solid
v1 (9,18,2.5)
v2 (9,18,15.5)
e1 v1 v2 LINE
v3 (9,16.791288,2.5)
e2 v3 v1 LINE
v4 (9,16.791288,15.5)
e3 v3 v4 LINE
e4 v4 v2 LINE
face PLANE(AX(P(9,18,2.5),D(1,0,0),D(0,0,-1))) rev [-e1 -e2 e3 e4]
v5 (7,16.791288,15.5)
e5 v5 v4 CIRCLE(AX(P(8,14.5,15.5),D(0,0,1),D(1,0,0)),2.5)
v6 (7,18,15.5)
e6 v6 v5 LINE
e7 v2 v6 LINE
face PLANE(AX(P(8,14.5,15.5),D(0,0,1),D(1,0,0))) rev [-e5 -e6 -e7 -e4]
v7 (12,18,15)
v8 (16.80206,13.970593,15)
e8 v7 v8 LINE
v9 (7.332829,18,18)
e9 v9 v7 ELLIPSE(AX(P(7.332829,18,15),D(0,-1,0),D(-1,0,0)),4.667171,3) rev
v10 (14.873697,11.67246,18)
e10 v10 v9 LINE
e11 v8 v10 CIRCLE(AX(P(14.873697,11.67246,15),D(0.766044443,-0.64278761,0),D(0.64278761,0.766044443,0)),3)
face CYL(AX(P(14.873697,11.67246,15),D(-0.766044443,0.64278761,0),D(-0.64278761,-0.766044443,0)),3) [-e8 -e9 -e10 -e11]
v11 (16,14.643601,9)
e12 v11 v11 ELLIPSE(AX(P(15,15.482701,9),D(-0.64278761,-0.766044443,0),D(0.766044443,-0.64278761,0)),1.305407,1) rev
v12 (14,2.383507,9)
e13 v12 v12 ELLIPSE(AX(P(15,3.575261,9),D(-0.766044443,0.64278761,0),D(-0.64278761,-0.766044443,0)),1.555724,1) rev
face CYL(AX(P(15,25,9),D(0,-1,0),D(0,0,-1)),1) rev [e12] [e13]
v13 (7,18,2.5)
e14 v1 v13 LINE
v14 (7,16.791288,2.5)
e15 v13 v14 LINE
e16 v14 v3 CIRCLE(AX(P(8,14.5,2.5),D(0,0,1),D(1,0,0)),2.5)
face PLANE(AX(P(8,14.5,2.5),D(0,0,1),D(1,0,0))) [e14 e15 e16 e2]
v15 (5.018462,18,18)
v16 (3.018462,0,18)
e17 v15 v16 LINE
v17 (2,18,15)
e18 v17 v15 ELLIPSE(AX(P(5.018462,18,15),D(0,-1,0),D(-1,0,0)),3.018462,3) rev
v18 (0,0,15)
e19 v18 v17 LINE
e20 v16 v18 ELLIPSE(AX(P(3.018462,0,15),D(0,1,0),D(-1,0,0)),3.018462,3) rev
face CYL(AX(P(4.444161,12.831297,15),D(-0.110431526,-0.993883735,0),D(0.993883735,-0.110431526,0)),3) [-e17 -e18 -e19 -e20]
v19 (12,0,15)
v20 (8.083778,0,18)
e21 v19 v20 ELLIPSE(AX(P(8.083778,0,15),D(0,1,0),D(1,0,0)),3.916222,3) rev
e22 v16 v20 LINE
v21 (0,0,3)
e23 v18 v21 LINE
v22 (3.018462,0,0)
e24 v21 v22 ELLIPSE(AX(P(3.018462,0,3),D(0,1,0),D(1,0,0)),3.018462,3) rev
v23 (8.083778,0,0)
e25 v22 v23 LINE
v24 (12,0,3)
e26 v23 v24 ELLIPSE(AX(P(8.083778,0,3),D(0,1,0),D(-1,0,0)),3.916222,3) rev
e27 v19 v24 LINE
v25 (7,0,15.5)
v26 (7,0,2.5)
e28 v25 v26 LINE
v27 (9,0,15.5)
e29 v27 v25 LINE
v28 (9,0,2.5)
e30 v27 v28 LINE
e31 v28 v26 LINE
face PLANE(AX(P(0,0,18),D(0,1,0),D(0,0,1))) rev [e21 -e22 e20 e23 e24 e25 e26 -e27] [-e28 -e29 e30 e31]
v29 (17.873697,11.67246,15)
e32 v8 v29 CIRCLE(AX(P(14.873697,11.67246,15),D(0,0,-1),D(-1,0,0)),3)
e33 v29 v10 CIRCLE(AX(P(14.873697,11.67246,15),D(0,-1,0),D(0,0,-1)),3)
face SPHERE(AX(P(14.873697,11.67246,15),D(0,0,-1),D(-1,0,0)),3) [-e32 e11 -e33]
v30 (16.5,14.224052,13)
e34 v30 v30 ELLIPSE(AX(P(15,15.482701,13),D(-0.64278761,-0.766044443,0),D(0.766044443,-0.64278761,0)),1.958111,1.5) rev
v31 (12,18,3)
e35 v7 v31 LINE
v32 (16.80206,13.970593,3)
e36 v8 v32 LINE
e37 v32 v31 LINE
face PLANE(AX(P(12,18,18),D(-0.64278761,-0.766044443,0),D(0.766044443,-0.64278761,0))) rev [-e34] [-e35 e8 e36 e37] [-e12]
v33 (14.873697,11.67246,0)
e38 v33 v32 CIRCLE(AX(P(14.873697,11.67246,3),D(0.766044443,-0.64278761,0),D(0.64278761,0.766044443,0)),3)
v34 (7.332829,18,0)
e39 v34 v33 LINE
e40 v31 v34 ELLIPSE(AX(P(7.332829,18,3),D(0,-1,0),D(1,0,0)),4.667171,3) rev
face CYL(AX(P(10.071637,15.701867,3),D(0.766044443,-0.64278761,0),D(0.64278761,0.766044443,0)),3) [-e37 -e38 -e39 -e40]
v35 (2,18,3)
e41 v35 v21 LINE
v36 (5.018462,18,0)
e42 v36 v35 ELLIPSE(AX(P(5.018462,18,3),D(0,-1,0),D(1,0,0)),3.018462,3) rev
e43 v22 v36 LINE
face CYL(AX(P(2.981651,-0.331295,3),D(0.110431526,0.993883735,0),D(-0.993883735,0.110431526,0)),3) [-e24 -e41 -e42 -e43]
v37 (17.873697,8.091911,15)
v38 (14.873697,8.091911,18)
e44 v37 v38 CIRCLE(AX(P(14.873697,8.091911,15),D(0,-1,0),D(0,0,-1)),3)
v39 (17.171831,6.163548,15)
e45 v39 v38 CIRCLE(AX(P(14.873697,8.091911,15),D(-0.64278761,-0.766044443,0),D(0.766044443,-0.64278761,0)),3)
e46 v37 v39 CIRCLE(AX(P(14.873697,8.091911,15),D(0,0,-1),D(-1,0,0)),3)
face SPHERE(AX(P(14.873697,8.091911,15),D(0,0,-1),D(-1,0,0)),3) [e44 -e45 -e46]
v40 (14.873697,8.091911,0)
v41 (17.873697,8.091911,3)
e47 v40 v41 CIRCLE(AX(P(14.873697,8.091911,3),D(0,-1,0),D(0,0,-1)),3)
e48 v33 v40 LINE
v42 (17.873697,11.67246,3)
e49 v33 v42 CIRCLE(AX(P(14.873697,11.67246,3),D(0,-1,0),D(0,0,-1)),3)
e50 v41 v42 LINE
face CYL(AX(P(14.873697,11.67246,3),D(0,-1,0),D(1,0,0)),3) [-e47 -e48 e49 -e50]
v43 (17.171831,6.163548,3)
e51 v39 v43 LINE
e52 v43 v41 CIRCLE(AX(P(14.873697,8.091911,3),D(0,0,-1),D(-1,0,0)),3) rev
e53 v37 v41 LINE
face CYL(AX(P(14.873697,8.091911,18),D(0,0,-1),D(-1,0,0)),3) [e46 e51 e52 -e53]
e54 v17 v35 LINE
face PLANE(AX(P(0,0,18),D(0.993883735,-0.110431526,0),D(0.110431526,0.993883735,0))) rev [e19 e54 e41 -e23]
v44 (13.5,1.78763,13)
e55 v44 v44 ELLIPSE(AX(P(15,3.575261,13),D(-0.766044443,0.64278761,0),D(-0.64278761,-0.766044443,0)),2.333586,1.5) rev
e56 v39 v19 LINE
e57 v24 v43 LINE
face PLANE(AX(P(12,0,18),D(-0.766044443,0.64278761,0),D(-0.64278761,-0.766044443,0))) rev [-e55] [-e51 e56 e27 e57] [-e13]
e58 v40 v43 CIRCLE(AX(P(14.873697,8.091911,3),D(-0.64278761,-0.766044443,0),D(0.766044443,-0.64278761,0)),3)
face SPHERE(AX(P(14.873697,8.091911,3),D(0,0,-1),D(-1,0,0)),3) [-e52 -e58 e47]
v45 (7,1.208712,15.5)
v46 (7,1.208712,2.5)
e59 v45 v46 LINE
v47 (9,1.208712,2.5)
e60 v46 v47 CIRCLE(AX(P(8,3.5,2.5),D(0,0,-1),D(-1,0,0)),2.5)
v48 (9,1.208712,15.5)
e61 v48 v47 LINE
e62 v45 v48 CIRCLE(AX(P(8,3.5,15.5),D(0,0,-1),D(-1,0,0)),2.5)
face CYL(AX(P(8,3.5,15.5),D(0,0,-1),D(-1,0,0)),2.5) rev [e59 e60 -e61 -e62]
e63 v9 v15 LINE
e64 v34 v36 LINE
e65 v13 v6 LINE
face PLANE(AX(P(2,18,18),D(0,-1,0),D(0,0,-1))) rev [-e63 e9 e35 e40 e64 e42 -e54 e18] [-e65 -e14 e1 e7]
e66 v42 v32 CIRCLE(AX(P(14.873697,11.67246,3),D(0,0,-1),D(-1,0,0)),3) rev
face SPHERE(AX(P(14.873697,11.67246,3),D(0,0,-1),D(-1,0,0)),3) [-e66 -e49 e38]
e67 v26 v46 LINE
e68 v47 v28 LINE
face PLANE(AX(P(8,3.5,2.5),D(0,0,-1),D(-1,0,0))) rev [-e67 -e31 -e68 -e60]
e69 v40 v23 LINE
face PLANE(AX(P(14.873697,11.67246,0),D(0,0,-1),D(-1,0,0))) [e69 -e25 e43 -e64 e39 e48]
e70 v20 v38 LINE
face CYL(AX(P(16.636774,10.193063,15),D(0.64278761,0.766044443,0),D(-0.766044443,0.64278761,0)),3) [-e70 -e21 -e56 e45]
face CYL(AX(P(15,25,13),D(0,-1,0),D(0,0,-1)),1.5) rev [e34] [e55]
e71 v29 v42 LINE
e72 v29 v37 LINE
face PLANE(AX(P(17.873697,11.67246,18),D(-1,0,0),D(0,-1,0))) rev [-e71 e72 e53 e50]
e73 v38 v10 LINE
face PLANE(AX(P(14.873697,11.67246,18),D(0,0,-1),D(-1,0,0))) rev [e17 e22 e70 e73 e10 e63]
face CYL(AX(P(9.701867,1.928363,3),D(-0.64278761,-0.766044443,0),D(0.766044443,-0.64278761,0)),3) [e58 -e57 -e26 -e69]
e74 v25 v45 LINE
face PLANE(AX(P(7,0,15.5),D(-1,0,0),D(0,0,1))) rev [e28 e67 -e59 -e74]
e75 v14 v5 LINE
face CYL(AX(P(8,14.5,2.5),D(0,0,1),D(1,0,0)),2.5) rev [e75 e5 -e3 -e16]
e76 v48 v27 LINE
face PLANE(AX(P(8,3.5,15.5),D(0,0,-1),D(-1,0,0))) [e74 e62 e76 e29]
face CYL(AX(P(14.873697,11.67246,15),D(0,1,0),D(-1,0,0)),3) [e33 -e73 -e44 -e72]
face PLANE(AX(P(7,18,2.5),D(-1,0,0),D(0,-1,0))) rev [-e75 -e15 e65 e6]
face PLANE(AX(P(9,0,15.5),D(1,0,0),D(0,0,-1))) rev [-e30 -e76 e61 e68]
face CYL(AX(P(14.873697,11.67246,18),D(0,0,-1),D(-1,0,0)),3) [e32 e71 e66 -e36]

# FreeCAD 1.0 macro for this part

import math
import FreeCAD as App
import Part
import Sketcher
Q = App.Units.Quantity


def edges_at(feature, points):
    """Names of the edges that pass closest to the given points."""
    edges = feature.Shape.Edges
    near = lambda p: min(range(len(edges)), key=lambda i: edges[i].distToShape(Part.Vertex(*p))[0])
    return sorted({f"Edge{near(p) + 1}" for p in points})

doc = App.newDocument("Part")
body = doc.addObject("PartDesign::Body", "Body")

sketch1 = body.newObject("Sketcher::SketchObject", "Sketch")
sketch1.AttachmentSupport = (doc.getObject("XY_Plane"), [""])
sketch1.MapMode = "FlatFace"
sketch1.addGeometry([
    Part.LineSegment(App.Vector(0, 0, 0), App.Vector(12, 0, 0)),
    Part.LineSegment(App.Vector(12, 0, 0), App.Vector(17.2, 6.2, 0)),
    Part.ArcOfCircle(Part.Circle(App.Vector(14.9, 8.1, 0), App.Vector(0, 0, 1), 3), math.radians(-40), math.radians(0)),
    Part.LineSegment(App.Vector(17.9, 8.1, 0), App.Vector(17.9, 11.7, 0)),
    Part.ArcOfCircle(Part.Circle(App.Vector(14.9, 11.7, 0), App.Vector(0, 0, 1), 3), math.radians(0), math.radians(50)),
    Part.LineSegment(App.Vector(16.8, 14, 0), App.Vector(12, 18, 0)),
    Part.LineSegment(App.Vector(12, 18, 0), App.Vector(2, 18, 0)),
    Part.LineSegment(App.Vector(2, 18, 0), App.Vector(0, 0, 0)),
], False)
sketch1.addConstraint([
    Sketcher.Constraint("Coincident", 0, 2, 1, 1),
    Sketcher.Constraint("Tangent", 1, 2, 2, 1),
    Sketcher.Constraint("Tangent", 2, 2, 3, 1),
    Sketcher.Constraint("Tangent", 3, 2, 4, 1),
    Sketcher.Constraint("Tangent", 4, 2, 5, 1),
    Sketcher.Constraint("Coincident", 5, 2, 6, 1),
    Sketcher.Constraint("Coincident", 6, 2, 7, 1),
    Sketcher.Constraint("Coincident", 7, 2, 0, 1),
    Sketcher.Constraint("Horizontal", 0),
    Sketcher.Constraint("Vertical", 3),
    Sketcher.Constraint("Horizontal", 6),
    Sketcher.Constraint("Coincident", 7, 2, -1, 1),
    Sketcher.Constraint("Equal", 2, 4),
    Sketcher.Constraint("Perpendicular", 1, 5),
    Sketcher.Constraint("Vertical", 0, 2, 5, 2),
    Sketcher.Constraint("Radius", 2, Q("3 mm")),
    Sketcher.Constraint("DistanceX", 0, 1, 0, 2, Q("12 mm")),
    Sketcher.Constraint("DistanceX", 6, 2, 6, 1, Q("10 mm")),
    Sketcher.Constraint("Angle", 1, Q("50 deg")),
    Sketcher.Constraint("DistanceY", -1, 1, 5, 2, Q("18 mm")),
    Sketcher.Constraint("DistanceY", 3, 1, 3, 2, Q("3.580549 mm")),
])
pad1 = body.newObject("PartDesign::Pad", "Pad")
pad1.Profile = sketch1
pad1.Length = 18

sketch2 = body.newObject("Sketcher::SketchObject", "Sketch001")
sketch2.AttachmentSupport = (doc.getObject("XY_Plane"), [""])
sketch2.MapMode = "FlatFace"
sketch2.AttachmentOffset = App.Placement(App.Vector(0, 0, 15.5), App.Rotation())
sketch2.addGeometry([
    Part.LineSegment(App.Vector(9, 18, 0), App.Vector(7, 18, 0)),
    Part.LineSegment(App.Vector(7, 18, 0), App.Vector(7, 16.8, 0)),
    Part.ArcOfCircle(Part.Circle(App.Vector(8, 14.5, 0), App.Vector(0, 0, 1), 2.5), math.radians(114), math.radians(426)),
    Part.LineSegment(App.Vector(9, 16.8, 0), App.Vector(9, 18, 0)),
], False)
sketch2.addConstraint([
    Sketcher.Constraint("Coincident", 0, 2, 1, 1),
    Sketcher.Constraint("Coincident", 1, 2, 2, 1),
    Sketcher.Constraint("Coincident", 2, 2, 3, 1),
    Sketcher.Constraint("Coincident", 3, 2, 0, 1),
    Sketcher.Constraint("Horizontal", 0),
    Sketcher.Constraint("Vertical", 1),
    Sketcher.Constraint("Vertical", 3),
    Sketcher.Constraint("Horizontal", 1, 2, 2, 2),
    Sketcher.Constraint("Radius", 2, Q("2.5 mm")),
    Sketcher.Constraint("DistanceX", 0, 2, 0, 1, Q("2 mm")),
    Sketcher.Constraint("DistanceX", -1, 1, 2, 3, Q("8 mm")),
    Sketcher.Constraint("DistanceY", -1, 1, 0, 2, Q("18 mm")),
    Sketcher.Constraint("DistanceY", -1, 1, 2, 3, Q("14.5 mm")),
])
pocket1 = body.newObject("PartDesign::Pocket", "Pocket")
pocket1.Profile = sketch2
pocket1.Length = 13

sketch3 = body.newObject("Sketcher::SketchObject", "Sketch002")
sketch3.AttachmentSupport = (doc.getObject("XY_Plane"), [""])
sketch3.MapMode = "FlatFace"
sketch3.AttachmentOffset = App.Placement(App.Vector(0, 0, 2.5), App.Rotation())
sketch3.addGeometry([
    Part.LineSegment(App.Vector(9, 0, 0), App.Vector(7, 0, 0)),
    Part.LineSegment(App.Vector(7, 0, 0), App.Vector(7, 1.2, 0)),
    Part.ArcOfCircle(Part.Circle(App.Vector(8, 3.5, 0), App.Vector(0, 0, 1), 2.5), math.radians(-66), math.radians(246)),
    Part.LineSegment(App.Vector(9, 1.2, 0), App.Vector(9, 0, 0)),
], False)
sketch3.addConstraint([
    Sketcher.Constraint("Coincident", 0, 2, 1, 1),
    Sketcher.Constraint("Coincident", 1, 2, 2, 2),
    Sketcher.Constraint("Coincident", 2, 1, 3, 1),
    Sketcher.Constraint("Coincident", 3, 2, 0, 1),
    Sketcher.Constraint("Horizontal", 0),
    Sketcher.Constraint("Vertical", 1),
    Sketcher.Constraint("Vertical", 3),
    Sketcher.Constraint("PointOnObject", 0, 2, -1),
    Sketcher.Constraint("Horizontal", 1, 2, 2, 1),
    Sketcher.Constraint("Radius", 2, Q("2.5 mm")),
    Sketcher.Constraint("DistanceX", 0, 2, 0, 1, Q("2 mm")),
    Sketcher.Constraint("DistanceX", -1, 1, 2, 3, Q("8 mm")),
    Sketcher.Constraint("DistanceY", -1, 1, 2, 3, Q("3.5 mm")),
])
pocket2 = body.newObject("PartDesign::Pocket", "Pocket001")
pocket2.Profile = sketch3
pocket2.Length = 13
pocket2.Reversed = True

sketch4 = body.newObject("Sketcher::SketchObject", "Sketch003")
sketch4.AttachmentSupport = (doc.getObject("XZ_Plane"), [""])
sketch4.MapMode = "FlatFace"
sketch4.addGeometry([
    Part.Circle(App.Vector(15, 9, 0), App.Vector(0, 0, 1), 1),
    Part.Circle(App.Vector(15, 13, 0), App.Vector(0, 0, 1), 1.5),
], False)
sketch4.addConstraint([
    Sketcher.Constraint("Vertical", 0, 3, 1, 3),
    Sketcher.Constraint("Diameter", 0, Q("2 mm")),
    Sketcher.Constraint("Diameter", 1, Q("3 mm")),
    Sketcher.Constraint("DistanceX", -1, 1, 0, 3, Q("15 mm")),
    Sketcher.Constraint("DistanceY", -1, 1, 0, 3, Q("9 mm")),
    Sketcher.Constraint("DistanceY", -1, 1, 1, 3, Q("13 mm")),
])
pocket3 = body.newObject("PartDesign::Pocket", "Pocket002")
pocket3.Profile = sketch4
pocket3.Length = 25
doc.recompute()

fillet = body.newObject("PartDesign::Fillet", "Fillet")
fillet.Base = (pocket3, edges_at(pocket3, [
    (17.693, 7.066, 0),
    (14.586, 3.082, 0),
    (1, 9, 0),
    (14.586, 3.082, 18),
    (17.693, 7.066, 18),
    (17.874, 9.882, 18),
    (17.593, 12.94, 18),
    (14.401, 15.985, 18),
    (1, 9, 18),
    (14.401, 15.985, 0),
    (17.593, 12.94, 0),
    (17.874, 9.882, 0),
]))
fillet.Radius = 3

doc.recompute()
